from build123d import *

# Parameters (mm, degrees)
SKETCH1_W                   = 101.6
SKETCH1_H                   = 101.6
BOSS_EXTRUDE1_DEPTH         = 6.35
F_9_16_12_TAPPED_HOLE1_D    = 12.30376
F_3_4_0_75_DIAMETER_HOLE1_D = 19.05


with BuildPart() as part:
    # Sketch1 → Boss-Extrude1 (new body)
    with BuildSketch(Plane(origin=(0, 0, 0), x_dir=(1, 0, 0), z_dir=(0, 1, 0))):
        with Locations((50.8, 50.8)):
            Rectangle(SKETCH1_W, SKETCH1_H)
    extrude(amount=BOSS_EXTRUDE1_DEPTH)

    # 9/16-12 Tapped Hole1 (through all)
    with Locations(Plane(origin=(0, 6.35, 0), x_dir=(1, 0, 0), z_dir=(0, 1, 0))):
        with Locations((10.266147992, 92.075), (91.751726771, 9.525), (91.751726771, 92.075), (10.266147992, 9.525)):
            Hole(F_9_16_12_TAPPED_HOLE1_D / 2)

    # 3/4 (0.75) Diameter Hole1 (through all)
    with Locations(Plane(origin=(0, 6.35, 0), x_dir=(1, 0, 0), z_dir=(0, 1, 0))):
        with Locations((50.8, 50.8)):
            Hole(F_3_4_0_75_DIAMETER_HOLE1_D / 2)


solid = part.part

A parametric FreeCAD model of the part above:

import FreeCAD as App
import Part
import Sketcher
from FreeCAD import Vector
Q = App.Units.Quantity

doc = App.newDocument("Part")
body = doc.addObject("PartDesign::Body", "Body")

sketch1 = body.newObject("Sketcher::SketchObject", "Sketch")
sketch1.AttachmentSupport = (doc.getObject("XZ_Plane"), [""])
sketch1.MapMode = "FlatFace"
sketch1.addGeometry([
    Part.LineSegment(Vector(0, -102, 0), Vector(0, 0, 0)),
    Part.LineSegment(Vector(0, 0, 0), Vector(102, 0, 0)),
    Part.LineSegment(Vector(102, 0, 0), Vector(102, -102, 0)),
    Part.LineSegment(Vector(102, -102, 0), Vector(0, -102, 0)),
], False)
sketch1.addConstraint([
    Sketcher.Constraint("Coincident", 0, 2, 1, 1),
    Sketcher.Constraint("Coincident", 1, 2, 2, 1),
    Sketcher.Constraint("Coincident", 2, 2, 3, 1),
    Sketcher.Constraint("Coincident", 3, 2, 0, 1),
    Sketcher.Constraint("Vertical", 0),
    Sketcher.Constraint("Horizontal", 1),
    Sketcher.Constraint("Vertical", 2),
    Sketcher.Constraint("Horizontal", 3),
    Sketcher.Constraint("Coincident", 0, 2, -1, 1),
    Sketcher.Constraint("Equal", 3, 0),
    Sketcher.Constraint("DistanceX", 1, 1, 1, 2, Q("4 in")),
])
pad1 = body.newObject("PartDesign::Pad", "Pad")
pad1.Profile = sketch1
pad1.Length = Q("0.25 in")
pad1.Reversed = True

sketch2 = body.newObject("Sketcher::SketchObject", "Sketch001")
sketch2.AttachmentSupport = (doc.getObject("XZ_Plane"), [""])
sketch2.MapMode = "FlatFace"
sketch2.AttachmentOffset = App.Placement(Vector(0, 0, -0.25 * 25.4), App.Rotation())
sketch2.addGeometry([
    Part.Circle(Vector(10, -92, 0), Vector(0, 0, 1), 6),
    Part.Circle(Vector(92, -10, 0), Vector(0, 0, 1), 6),
    Part.Circle(Vector(92, -92, 0), Vector(0, 0, 1), 6),
    Part.Circle(Vector(10, -10, 0), Vector(0, 0, 1), 6),
], False)
sketch2.addConstraint([
    Sketcher.Constraint("Equal", 0, 1),
    Sketcher.Constraint("Equal", 1, 2),
    Sketcher.Constraint("Equal", 2, 3),
    Sketcher.Constraint("Horizontal", 0, 3, 2, 3),
    Sketcher.Constraint("Horizontal", 1, 3, 3, 3),
    Sketcher.Constraint("Vertical", 1, 3, 2, 3),
    Sketcher.Constraint("Vertical", 0, 3, 3, 3),
    Sketcher.Constraint("Diameter", 0, Q("0.4844 in")),
    Sketcher.Constraint("DistanceY", 0, 3, 1, 3, Q("3.25 in")),
    Sketcher.Constraint("DistanceY", 0, 3, -1, 1, Q("3.625 in")),
    Sketcher.Constraint("DistanceX", 0, 3, 1, 3, 81.485579),
    Sketcher.Constraint("DistanceX", -1, 1, 0, 3, 10.266148),
])
doc.recompute()
hole = body.newObject("PartDesign::Hole", "Hole")
hole.Profile = sketch2
hole.ThreadType = "None"
hole.Diameter = Q("0.4844 in")
hole.DepthType = "ThroughAll"
hole.Reversed = True

sketch3 = body.newObject("Sketcher::SketchObject", "Sketch002")
sketch3.AttachmentSupport = (doc.getObject("XZ_Plane"), [""])
sketch3.MapMode = "FlatFace"
sketch3.AttachmentOffset = App.Placement(Vector(0, 0, -0.25 * 25.4), App.Rotation())
sketch3.addGeometry(Part.Circle(Vector(51, -51, 0), Vector(0, 0, 1), 10), False)
sketch3.addConstraint([
    Sketcher.Constraint("Diameter", 0, Q("0.75 in")),
    Sketcher.Constraint("DistanceX", -1, 1, 0, 3, Q("2 in")),
    Sketcher.Constraint("DistanceY", 0, 3, -1, 1, Q("2 in")),
])
doc.recompute()
hole2 = body.newObject("PartDesign::Hole", "Hole001")
hole2.Profile = sketch3
hole2.ThreadType = "None"
hole2.Diameter = Q("0.75 in")
hole2.DepthType = "ThroughAll"
hole2.Reversed = True

doc.recompute()
